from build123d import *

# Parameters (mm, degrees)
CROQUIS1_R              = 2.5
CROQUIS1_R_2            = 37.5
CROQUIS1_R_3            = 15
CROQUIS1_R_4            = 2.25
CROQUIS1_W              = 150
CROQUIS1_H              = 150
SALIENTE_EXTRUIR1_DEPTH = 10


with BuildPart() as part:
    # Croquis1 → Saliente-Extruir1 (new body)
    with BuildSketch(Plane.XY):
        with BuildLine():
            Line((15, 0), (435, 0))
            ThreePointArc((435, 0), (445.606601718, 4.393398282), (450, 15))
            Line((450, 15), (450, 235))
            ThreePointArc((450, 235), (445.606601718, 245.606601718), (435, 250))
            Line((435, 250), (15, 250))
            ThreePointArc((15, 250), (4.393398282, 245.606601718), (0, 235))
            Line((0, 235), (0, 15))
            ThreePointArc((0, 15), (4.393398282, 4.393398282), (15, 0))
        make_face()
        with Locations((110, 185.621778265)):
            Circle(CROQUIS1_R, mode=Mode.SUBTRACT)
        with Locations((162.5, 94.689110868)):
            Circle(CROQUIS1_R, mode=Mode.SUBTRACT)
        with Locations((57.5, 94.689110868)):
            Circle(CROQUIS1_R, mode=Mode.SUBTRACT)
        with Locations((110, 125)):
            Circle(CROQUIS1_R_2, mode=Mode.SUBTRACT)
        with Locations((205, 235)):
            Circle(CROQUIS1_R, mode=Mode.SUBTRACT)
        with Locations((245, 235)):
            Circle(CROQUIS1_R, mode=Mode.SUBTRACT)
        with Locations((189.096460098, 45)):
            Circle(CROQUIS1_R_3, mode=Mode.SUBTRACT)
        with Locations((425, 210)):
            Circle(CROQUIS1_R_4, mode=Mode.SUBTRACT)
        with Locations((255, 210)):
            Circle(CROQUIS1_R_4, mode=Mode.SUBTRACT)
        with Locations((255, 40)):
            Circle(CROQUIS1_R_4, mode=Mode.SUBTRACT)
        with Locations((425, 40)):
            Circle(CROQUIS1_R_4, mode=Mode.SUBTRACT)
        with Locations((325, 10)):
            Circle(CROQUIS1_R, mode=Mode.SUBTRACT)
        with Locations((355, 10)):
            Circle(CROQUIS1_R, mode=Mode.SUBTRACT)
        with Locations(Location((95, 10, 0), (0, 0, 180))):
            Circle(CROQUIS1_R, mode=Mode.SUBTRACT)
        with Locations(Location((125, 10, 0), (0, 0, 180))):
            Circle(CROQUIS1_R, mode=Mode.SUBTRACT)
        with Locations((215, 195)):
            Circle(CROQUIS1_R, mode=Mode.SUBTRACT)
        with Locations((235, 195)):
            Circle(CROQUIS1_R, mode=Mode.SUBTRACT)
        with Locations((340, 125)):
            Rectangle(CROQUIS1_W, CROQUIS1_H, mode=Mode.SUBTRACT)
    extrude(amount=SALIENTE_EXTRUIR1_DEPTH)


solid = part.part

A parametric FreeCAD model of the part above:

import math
import FreeCAD as App
import Part
import Sketcher

V = App.Vector


def add_polygon(sketch, points):
    """Adds a closed chain of lines whose ends are joined by coincident constraints."""
    first, n = sketch.GeometryCount, len(points)
    for a, b in zip(points, points[1:] + points[:1]):
        sketch.addGeometry(Part.LineSegment(App.Vector(*a, 0), App.Vector(*b, 0)), False)
    for i in range(n):
        sketch.addConstraint(Sketcher.Constraint("Coincident", first + i, 2, first + (i + 1) % n, 1))

doc = App.newDocument("Part")
body = doc.addObject("PartDesign::Body", "Body")

# Sketch on XY plane
sketch1 = body.newObject("Sketcher::SketchObject", "Sketch")
sketch1.AttachmentSupport = (doc.getObject("XY_Plane"), [""])
sketch1.MapMode = "FlatFace"
sketch1.addGeometry(Part.LineSegment(V(15, 0, 0), V(435, 0, 0)), False)  # 0
sketch1.addGeometry(Part.ArcOfCircle(Part.Circle(V(435, 15, 0), V(0, 0, 1), 15), math.radians(-90), math.radians(0)), False)  # 1
sketch1.addGeometry(Part.LineSegment(V(450, 15, 0), V(450, 235, 0)), False)  # 2
sketch1.addGeometry(Part.ArcOfCircle(Part.Circle(V(435, 235, 0), V(0, 0, 1), 15), math.radians(0), math.radians(90)), False)  # 3
sketch1.addGeometry(Part.LineSegment(V(435, 250, 0), V(15, 250, 0)), False)  # 4
sketch1.addGeometry(Part.ArcOfCircle(Part.Circle(V(15, 235, 0), V(0, 0, 1), 15), math.radians(90), math.radians(180)), False)  # 5
sketch1.addGeometry(Part.LineSegment(V(0, 235, 0), V(0, 15, 0)), False)  # 6
sketch1.addGeometry(Part.ArcOfCircle(Part.Circle(V(15, 15, 0), V(0, 0, 1), 15), math.radians(180), math.radians(270)), False)  # 7
sketch1.addGeometry(Part.Circle(V(95, 10, 0), V(0, 0, 1), 2.5), False)  # 8
sketch1.addGeometry(Part.Circle(V(125, 10, 0), V(0, 0, 1), 2.5), False)  # 9
sketch1.addGeometry(Part.Circle(V(189.09646, 45, 0), V(0, 0, 1), 15), False)  # 10
sketch1.addGeometry(Part.Circle(V(57.5, 94.689111, 0), V(0, 0, 1), 2.5), False)  # 11
sketch1.addGeometry(Part.Circle(V(162.5, 94.689111, 0), V(0, 0, 1), 2.5), False)  # 12
sketch1.addGeometry(Part.Circle(V(325, 10, 0), V(0, 0, 1), 2.5), False)  # 13
sketch1.addGeometry(Part.Circle(V(255, 40, 0), V(0, 0, 1), 2.25), False)  # 14
sketch1.addGeometry(Part.Circle(V(355, 10, 0), V(0, 0, 1), 2.5), False)  # 15
sketch1.addGeometry(Part.Circle(V(425, 40, 0), V(0, 0, 1), 2.25), False)  # 16
sketch1.addGeometry(Part.Circle(V(110, 125, 0), V(0, 0, 1), 37.5), False)  # 17
sketch1.addGeometry(Part.Circle(V(110, 185.621778, 0), V(0, 0, 1), 2.5), False)  # 18
sketch1.addGeometry(Part.Circle(V(215, 195, 0), V(0, 0, 1), 2.5), False)  # 19
sketch1.addGeometry(Part.Circle(V(235, 195, 0), V(0, 0, 1), 2.5), False)  # 20
sketch1.addGeometry(Part.Circle(V(205, 235, 0), V(0, 0, 1), 2.5), False)  # 21
add_polygon(sketch1, [(415, 50), (265, 50), (265, 200), (415, 200)])  # lines 22-25
sketch1.addGeometry(Part.Circle(V(255, 210, 0), V(0, 0, 1), 2.25), False)  # 26
sketch1.addGeometry(Part.Circle(V(245, 235, 0), V(0, 0, 1), 2.5), False)  # 27
sketch1.addGeometry(Part.Circle(V(425, 210, 0), V(0, 0, 1), 2.25), False)  # 28
sketch1.addConstraint(Sketcher.Constraint("Tangent", 0, 2, 1, 1))
sketch1.addConstraint(Sketcher.Constraint("Tangent", 1, 2, 2, 1))
sketch1.addConstraint(Sketcher.Constraint("Tangent", 2, 2, 3, 1))
sketch1.addConstraint(Sketcher.Constraint("Tangent", 3, 2, 4, 1))
sketch1.addConstraint(Sketcher.Constraint("Tangent", 4, 2, 5, 1))
sketch1.addConstraint(Sketcher.Constraint("Tangent", 5, 2, 6, 1))
sketch1.addConstraint(Sketcher.Constraint("Tangent", 6, 2, 7, 1))
sketch1.addConstraint(Sketcher.Constraint("Tangent", 7, 2, 0, 1))
sketch1.addConstraint(Sketcher.Constraint("Horizontal", 0))
sketch1.addConstraint(Sketcher.Constraint("Vertical", 2))
sketch1.addConstraint(Sketcher.Constraint("Horizontal", 4))
sketch1.addConstraint(Sketcher.Constraint("Vertical", 6))
sketch1.addConstraint(Sketcher.Constraint("Horizontal", 22))
sketch1.addConstraint(Sketcher.Constraint("Vertical", 23))
sketch1.addConstraint(Sketcher.Constraint("Horizontal", 24))
sketch1.addConstraint(Sketcher.Constraint("Vertical", 25))
sketch1.addConstraint(Sketcher.Constraint("Equal", 1, 3))
sketch1.addConstraint(Sketcher.Constraint("Equal", 3, 5))
sketch1.addConstraint(Sketcher.Constraint("Equal", 5, 7))
sketch1.addConstraint(Sketcher.Constraint("Equal", 8, 9))
sketch1.addConstraint(Sketcher.Constraint("Equal", 7, 10))
sketch1.addConstraint(Sketcher.Constraint("Equal", 9, 11))
sketch1.addConstraint(Sketcher.Constraint("Equal", 11, 12))
sketch1.addConstraint(Sketcher.Constraint("Equal", 12, 13))
sketch1.addConstraint(Sketcher.Constraint("Equal", 13, 15))
sketch1.addConstraint(Sketcher.Constraint("Equal", 14, 16))
sketch1.addConstraint(Sketcher.Constraint("Equal", 15, 18))
sketch1.addConstraint(Sketcher.Constraint("Equal", 18, 19))
sketch1.addConstraint(Sketcher.Constraint("Equal", 19, 20))
sketch1.addConstraint(Sketcher.Constraint("Equal", 20, 21))
sketch1.addConstraint(Sketcher.Constraint("Equal", 16, 26))
sketch1.addConstraint(Sketcher.Constraint("Equal", 21, 27))
sketch1.addConstraint(Sketcher.Constraint("Equal", 26, 28))
sketch1.addConstraint(Sketcher.Constraint("PointOnObject", 0, 2, -1))
sketch1.addConstraint(Sketcher.Constraint("PointOnObject", 5, 2, -2))
sketch1.addConstraint(Sketcher.Constraint("Horizontal", 8, 3, 9, 3))
sketch1.addConstraint(Sketcher.Constraint("Horizontal", 11, 3, 12, 3))
sketch1.addConstraint(Sketcher.Constraint("Horizontal", 9, 3, 13, 3))
sketch1.addConstraint(Sketcher.Constraint("Horizontal", 13, 3, 15, 3))
sketch1.addConstraint(Sketcher.Constraint("Horizontal", 14, 3, 16, 3))
sketch1.addConstraint(Sketcher.Constraint("Horizontal", 19, 3, 20, 3))
sketch1.addConstraint(Sketcher.Constraint("Horizontal", 5, 3, 21, 3))
sketch1.addConstraint(Sketcher.Constraint("Horizontal", 21, 3, 27, 3))
sketch1.addConstraint(Sketcher.Constraint("Horizontal", 26, 3, 28, 3))
sketch1.addConstraint(Sketcher.Constraint("Vertical", 17, 3, 18, 3))
sketch1.addConstraint(Sketcher.Constraint("Vertical", 14, 3, 26, 3))
sketch1.addConstraint(Sketcher.Constraint("Vertical", 16, 3, 28, 3))
sketch1.addConstraint(Sketcher.Constraint("Equal", 24, 23))
sketch1.addConstraint(Sketcher.Constraint("Diameter", 8, 5.0))
sketch1.addConstraint(Sketcher.Constraint("Diameter", 10, 30.0))
sketch1.addConstraint(Sketcher.Constraint("Diameter", 17, 75.0))
sketch1.addConstraint(Sketcher.Constraint("Diameter", 14, 4.5))
sketch1.addConstraint(Sketcher.Constraint("DistanceX", 0, 1, 0, 2, 420.0))
sketch1.addConstraint(Sketcher.Constraint("DistanceX", 22, 2, 22, 1, 150.0))
sketch1.addConstraint(Sketcher.Constraint("DistanceY", 2, 1, 2, 2, 220.0))
sketch1.addConstraint(Sketcher.Constraint("DistanceX", -1, 1, 8, 3, 95.0))
sketch1.addConstraint(Sketcher.Constraint("DistanceY", -1, 1, 8, 3, 10.0))
sketch1.addConstraint(Sketcher.Constraint("DistanceX", -1, 1, 9, 3, 125.0))
sketch1.addConstraint(Sketcher.Constraint("DistanceY", -1, 1, 10, 3, 45.0))
sketch1.addConstraint(Sketcher.Constraint("DistanceX", -1, 1, 13, 3, 325.0))
sketch1.addConstraint(Sketcher.Constraint("DistanceX", -1, 1, 14, 3, 255.0))
sketch1.addConstraint(Sketcher.Constraint("DistanceY", -1, 1, 14, 3, 40.0))
sketch1.addConstraint(Sketcher.Constraint("DistanceX", -1, 1, 15, 3, 355.0))
sketch1.addConstraint(Sketcher.Constraint("DistanceX", -1, 1, 16, 3, 425.0))
sketch1.addConstraint(Sketcher.Constraint("DistanceX", -1, 1, 17, 3, 110.0))
sketch1.addConstraint(Sketcher.Constraint("DistanceY", -1, 1, 17, 3, 125.0))
sketch1.addConstraint(Sketcher.Constraint("DistanceX", -1, 1, 19, 3, 215.0))
sketch1.addConstraint(Sketcher.Constraint("DistanceY", -1, 1, 19, 3, 195.0))
sketch1.addConstraint(Sketcher.Constraint("DistanceX", -1, 1, 20, 3, 235.0))
sketch1.addConstraint(Sketcher.Constraint("DistanceX", -1, 1, 21, 3, 205.0))
sketch1.addConstraint(Sketcher.Constraint("DistanceY", -1, 1, 26, 3, 210.0))
sketch1.addConstraint(Sketcher.Constraint("DistanceX", -1, 1, 27, 3, 245.0))
sketch1.addConstraint(Sketcher.Constraint("DistanceX", -1, 1, 22, 2, 265.0))
sketch1.addConstraint(Sketcher.Constraint("DistanceY", -1, 1, 22, 2, 50.0))
sketch1.addConstraint(Sketcher.Constraint("DistanceX", 11, 3, 12, 3, 105.0))
sketch1.addConstraint(Sketcher.Constraint("DistanceX", -1, 1, 11, 3, 57.5))
sketch1.addConstraint(Sketcher.Constraint("DistanceX", -1, 1, 10, 3, 189.09646))
sketch1.addConstraint(Sketcher.Constraint("DistanceY", -1, 1, 11, 3, 94.689111))
sketch1.addConstraint(Sketcher.Constraint("DistanceY", -1, 1, 18, 3, 185.621778))
pad1 = body.newObject("PartDesign::Pad", "Pad")
pad1.Profile = sketch1
pad1.Length = 10

doc.recompute()
